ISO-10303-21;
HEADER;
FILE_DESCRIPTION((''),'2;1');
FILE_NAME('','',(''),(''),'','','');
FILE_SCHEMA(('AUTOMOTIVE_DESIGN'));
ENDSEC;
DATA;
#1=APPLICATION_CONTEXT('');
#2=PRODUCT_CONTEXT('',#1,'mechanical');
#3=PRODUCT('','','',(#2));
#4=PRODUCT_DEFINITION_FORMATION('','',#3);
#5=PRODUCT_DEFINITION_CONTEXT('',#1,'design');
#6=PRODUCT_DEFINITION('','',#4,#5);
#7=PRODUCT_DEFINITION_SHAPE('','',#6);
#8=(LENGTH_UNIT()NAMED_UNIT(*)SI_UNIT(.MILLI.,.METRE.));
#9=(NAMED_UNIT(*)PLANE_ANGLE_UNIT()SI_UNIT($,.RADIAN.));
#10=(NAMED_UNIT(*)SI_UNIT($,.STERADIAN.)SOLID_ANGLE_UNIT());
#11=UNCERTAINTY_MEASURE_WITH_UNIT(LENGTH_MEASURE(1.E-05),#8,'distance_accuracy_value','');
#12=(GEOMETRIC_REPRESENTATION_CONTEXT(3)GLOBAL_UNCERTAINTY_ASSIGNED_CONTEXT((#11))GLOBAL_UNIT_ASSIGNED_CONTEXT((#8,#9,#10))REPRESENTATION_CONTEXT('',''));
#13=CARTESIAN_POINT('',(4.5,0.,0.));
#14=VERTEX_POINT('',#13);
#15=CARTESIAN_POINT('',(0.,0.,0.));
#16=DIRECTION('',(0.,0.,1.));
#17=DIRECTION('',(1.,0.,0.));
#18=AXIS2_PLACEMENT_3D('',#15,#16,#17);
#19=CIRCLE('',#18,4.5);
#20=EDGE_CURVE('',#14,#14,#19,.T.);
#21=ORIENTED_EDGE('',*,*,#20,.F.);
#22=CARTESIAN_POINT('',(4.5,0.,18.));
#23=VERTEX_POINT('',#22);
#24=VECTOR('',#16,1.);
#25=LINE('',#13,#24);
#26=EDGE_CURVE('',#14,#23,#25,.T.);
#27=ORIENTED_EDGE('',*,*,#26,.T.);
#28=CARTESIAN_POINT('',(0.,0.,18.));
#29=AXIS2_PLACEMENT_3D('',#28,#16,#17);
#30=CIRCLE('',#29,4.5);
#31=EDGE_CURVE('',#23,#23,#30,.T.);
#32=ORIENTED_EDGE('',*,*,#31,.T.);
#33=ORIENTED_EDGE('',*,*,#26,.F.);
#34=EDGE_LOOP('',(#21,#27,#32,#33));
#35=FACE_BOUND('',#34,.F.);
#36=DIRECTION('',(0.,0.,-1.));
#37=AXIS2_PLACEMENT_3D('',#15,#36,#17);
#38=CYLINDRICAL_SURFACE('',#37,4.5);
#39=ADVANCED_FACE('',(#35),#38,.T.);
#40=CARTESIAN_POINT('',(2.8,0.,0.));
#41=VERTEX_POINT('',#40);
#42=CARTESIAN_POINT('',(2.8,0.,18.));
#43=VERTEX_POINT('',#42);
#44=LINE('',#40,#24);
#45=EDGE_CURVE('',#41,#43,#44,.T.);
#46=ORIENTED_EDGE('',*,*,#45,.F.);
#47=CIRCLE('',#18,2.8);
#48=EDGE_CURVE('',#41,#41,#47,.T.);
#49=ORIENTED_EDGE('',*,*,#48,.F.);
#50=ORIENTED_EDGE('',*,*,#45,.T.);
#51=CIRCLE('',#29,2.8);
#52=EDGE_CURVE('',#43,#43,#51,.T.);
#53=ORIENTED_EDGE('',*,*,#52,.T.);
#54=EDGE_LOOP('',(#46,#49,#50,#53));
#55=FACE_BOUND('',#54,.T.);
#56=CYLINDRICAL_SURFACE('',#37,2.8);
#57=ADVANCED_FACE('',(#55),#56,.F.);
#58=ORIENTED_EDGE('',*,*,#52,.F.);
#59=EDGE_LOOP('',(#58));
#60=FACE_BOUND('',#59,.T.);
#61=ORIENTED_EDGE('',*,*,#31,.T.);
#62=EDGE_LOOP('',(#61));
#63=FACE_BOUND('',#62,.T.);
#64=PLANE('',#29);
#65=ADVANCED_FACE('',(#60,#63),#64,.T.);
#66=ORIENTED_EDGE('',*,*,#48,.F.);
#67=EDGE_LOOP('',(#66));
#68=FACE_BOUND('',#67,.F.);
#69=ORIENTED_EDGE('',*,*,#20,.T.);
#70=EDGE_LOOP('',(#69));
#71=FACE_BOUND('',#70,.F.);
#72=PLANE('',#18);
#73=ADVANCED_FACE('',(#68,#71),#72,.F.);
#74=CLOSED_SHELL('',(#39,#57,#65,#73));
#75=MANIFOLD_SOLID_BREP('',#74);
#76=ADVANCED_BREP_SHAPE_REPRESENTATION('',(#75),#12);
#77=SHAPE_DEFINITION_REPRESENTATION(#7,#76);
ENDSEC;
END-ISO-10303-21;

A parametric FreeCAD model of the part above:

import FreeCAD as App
import Part
import Sketcher
from FreeCAD import Vector
Q = App.Units.Quantity

doc = App.newDocument("Part")
body = doc.addObject("PartDesign::Body", "Body")

sketch1 = body.newObject("Sketcher::SketchObject", "Sketch")
sketch1.AttachmentSupport = (doc.getObject("XY_Plane"), [""])
sketch1.MapMode = "FlatFace"
sketch1.addGeometry([
    Part.Circle(Vector(0, 0, 0), Vector(0, 0, 1), 4.5),
    Part.Circle(Vector(0, 0, 0), Vector(0, 0, 1), 2.8),
], False)
sketch1.addConstraint([
    Sketcher.Constraint("Coincident", 0, 3, -1, 1),
    Sketcher.Constraint("Coincident", 1, 3, -1, 1),
    Sketcher.Constraint("Diameter", 0, Q("9 mm")),
    Sketcher.Constraint("Diameter", 1, Q("5.6 mm")),
])
pad1 = body.newObject("PartDesign::Pad", "Pad")
pad1.Profile = sketch1
pad1.Length = 18

doc.recompute()
